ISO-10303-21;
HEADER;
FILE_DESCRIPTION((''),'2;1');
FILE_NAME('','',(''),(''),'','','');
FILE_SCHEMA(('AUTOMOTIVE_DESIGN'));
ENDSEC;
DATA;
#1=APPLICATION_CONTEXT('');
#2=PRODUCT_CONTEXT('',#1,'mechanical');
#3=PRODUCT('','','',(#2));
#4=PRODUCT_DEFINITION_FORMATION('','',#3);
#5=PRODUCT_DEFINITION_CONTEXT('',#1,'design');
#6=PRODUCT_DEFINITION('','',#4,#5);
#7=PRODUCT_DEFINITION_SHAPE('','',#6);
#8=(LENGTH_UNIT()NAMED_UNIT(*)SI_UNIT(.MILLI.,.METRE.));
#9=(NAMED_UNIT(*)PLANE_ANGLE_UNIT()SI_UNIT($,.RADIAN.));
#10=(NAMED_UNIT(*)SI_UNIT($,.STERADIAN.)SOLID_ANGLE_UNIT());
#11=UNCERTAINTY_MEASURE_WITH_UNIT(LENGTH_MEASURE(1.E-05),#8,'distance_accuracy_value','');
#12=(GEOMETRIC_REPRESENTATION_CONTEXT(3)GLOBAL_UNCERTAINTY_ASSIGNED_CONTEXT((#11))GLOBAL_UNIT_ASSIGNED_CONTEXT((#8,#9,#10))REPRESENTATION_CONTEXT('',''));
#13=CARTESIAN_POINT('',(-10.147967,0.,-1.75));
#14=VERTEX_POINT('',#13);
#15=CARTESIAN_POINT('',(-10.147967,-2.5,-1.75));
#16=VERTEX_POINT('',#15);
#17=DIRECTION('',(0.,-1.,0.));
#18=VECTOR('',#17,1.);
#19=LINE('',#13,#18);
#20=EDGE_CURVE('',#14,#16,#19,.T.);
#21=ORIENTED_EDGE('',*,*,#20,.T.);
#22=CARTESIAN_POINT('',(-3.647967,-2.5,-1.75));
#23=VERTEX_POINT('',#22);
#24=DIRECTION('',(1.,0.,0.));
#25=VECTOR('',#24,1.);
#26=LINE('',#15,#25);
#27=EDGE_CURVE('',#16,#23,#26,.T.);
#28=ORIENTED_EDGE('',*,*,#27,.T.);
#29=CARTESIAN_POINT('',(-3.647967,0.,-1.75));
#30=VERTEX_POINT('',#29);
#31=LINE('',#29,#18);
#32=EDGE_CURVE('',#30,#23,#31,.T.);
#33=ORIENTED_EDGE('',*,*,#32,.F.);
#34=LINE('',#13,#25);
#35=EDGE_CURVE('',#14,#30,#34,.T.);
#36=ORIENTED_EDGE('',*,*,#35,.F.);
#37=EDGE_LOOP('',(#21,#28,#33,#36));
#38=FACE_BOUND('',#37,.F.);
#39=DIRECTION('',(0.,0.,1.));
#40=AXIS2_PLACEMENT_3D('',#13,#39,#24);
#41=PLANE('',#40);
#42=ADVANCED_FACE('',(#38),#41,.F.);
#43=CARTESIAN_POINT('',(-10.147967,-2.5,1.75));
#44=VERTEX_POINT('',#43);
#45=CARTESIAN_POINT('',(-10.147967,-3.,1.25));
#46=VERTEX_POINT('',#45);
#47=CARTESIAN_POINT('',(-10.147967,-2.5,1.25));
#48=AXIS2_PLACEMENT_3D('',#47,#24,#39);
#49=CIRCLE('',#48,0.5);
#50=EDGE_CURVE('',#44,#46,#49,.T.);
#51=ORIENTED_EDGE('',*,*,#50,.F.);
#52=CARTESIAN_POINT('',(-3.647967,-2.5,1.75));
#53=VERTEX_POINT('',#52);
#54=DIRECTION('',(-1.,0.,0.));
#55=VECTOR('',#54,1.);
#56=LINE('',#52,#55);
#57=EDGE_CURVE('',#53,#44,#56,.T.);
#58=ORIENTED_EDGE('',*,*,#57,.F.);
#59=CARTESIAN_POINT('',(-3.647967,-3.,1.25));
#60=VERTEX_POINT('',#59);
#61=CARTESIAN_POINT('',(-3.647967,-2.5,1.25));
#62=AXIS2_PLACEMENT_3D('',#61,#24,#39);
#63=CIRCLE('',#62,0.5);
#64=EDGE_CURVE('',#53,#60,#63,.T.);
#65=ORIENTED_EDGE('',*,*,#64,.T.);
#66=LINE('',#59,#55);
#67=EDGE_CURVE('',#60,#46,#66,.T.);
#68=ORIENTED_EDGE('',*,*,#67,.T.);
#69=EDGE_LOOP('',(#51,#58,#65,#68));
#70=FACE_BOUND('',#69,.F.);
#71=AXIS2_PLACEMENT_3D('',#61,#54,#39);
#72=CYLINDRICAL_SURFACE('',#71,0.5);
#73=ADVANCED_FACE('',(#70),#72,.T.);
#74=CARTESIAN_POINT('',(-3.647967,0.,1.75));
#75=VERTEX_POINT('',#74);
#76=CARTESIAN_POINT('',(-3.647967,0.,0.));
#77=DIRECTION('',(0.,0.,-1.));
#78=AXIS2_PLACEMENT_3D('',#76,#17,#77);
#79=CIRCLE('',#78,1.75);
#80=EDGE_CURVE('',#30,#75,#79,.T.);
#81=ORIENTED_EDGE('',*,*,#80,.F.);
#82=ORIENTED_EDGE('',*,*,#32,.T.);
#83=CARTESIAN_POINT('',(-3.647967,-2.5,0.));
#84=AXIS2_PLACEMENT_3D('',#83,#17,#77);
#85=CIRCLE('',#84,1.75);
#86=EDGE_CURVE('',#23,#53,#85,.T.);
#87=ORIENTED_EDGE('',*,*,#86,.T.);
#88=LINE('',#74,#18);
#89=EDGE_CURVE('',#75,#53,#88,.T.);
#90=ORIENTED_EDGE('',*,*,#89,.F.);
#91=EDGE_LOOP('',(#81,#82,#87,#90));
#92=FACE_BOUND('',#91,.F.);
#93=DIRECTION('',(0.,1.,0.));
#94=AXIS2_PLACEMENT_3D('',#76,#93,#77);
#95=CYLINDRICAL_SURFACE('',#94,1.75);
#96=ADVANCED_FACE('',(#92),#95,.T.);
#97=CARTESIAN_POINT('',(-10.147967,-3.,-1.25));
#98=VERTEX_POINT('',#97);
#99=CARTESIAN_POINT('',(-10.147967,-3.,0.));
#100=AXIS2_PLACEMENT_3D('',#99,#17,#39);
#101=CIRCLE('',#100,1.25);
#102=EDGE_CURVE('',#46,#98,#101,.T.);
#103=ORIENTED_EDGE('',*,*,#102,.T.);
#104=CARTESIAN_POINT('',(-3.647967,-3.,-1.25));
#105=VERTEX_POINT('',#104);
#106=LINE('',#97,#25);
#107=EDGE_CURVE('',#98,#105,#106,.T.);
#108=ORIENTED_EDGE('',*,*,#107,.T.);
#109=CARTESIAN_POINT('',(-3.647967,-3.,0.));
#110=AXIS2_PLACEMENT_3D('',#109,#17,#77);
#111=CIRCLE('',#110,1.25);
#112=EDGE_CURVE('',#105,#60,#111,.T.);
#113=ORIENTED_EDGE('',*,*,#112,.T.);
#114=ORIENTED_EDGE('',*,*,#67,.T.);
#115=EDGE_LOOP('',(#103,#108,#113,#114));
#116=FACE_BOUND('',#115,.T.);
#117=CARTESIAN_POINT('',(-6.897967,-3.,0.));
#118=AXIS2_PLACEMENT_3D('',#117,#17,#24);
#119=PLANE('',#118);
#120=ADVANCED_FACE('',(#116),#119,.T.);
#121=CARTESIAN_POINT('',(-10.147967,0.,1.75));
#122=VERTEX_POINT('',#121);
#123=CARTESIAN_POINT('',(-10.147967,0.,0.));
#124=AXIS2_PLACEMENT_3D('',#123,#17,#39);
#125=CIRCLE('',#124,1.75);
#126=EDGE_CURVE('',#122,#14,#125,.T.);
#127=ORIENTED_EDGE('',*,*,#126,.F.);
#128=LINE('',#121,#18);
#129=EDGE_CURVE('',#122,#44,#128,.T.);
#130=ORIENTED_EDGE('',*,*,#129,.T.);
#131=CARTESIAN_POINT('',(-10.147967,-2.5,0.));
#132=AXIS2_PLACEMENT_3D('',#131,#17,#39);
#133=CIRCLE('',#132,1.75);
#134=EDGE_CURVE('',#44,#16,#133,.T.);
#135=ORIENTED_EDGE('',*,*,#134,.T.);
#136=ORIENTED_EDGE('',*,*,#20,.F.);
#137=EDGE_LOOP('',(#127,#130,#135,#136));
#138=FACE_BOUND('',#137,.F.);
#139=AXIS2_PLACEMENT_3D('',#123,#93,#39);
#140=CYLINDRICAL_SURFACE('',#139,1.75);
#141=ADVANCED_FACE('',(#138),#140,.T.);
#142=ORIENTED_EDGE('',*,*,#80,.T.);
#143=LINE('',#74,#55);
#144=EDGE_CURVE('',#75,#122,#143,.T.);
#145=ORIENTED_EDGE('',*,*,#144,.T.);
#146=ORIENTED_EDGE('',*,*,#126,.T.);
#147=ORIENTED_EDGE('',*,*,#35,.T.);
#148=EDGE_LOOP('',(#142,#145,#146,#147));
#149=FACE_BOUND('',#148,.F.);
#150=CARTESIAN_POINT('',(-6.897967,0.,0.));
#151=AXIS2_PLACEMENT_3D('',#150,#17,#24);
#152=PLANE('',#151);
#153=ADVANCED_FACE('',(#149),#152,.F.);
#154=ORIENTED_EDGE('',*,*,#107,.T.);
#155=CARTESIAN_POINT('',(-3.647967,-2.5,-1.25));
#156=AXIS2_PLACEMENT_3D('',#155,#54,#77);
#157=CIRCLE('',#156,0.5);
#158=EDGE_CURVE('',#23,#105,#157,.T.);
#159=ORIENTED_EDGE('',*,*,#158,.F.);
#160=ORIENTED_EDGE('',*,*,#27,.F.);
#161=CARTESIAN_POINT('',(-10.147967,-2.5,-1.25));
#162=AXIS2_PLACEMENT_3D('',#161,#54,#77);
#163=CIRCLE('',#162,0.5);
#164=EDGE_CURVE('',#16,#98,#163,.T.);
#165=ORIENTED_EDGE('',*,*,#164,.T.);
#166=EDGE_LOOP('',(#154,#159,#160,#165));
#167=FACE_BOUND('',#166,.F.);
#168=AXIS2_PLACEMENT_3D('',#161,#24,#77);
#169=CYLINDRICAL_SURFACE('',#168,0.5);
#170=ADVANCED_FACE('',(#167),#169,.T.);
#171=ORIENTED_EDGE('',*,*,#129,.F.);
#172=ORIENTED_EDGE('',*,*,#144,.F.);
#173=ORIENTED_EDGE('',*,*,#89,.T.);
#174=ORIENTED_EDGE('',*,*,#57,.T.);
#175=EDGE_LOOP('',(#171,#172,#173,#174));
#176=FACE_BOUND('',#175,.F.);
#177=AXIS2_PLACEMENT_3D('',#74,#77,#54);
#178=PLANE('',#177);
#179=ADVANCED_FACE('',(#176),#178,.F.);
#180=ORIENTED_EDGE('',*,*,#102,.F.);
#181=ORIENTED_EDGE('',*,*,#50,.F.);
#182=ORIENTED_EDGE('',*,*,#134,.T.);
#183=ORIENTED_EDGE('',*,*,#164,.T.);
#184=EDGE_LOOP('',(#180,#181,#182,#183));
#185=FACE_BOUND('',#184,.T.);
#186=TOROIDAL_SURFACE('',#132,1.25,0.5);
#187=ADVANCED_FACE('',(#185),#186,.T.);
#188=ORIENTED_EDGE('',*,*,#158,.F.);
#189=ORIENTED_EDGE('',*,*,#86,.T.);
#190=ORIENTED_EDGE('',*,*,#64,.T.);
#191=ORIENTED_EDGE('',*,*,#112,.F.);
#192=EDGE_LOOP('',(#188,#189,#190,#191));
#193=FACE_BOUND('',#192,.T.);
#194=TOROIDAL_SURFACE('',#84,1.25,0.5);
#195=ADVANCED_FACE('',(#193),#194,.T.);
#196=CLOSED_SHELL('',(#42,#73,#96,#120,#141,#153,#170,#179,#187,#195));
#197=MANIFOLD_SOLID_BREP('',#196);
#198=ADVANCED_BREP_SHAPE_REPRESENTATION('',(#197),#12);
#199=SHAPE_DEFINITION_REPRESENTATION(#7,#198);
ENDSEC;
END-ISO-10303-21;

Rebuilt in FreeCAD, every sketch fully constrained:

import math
import FreeCAD as App
import Part
import Sketcher


def edges_at(feature, points):
    """Names of the edges that pass closest to the given points."""
    edges = feature.Shape.Edges
    near = lambda p: min(range(len(edges)), key=lambda i: edges[i].distToShape(Part.Vertex(*p))[0])
    return sorted({f"Edge{near(p) + 1}" for p in points})

doc = App.newDocument("Part")
body = doc.addObject("PartDesign::Body", "Body")

# Sketch on XZ plane
sketch1 = doc.addObject("Sketcher::SketchObject", "Sketch")
body.addObject(sketch1)
sketch1.AttachmentSupport = (doc.XZ_Plane, [""])
sketch1.MapMode = "FlatFace"
sketch1.addGeometry(Part.LineSegment(App.Vector(-3.6, 1.8, 0), App.Vector(-10.1, 1.8, 0)), False)
sketch1.addGeometry(Part.ArcOfCircle(Part.Circle(App.Vector(-10.1, 0, 0), App.Vector(0, 0, 1), 1.8), math.radians(90), math.radians(270)), False)
sketch1.addGeometry(Part.LineSegment(App.Vector(-10.1, -1.8, 0), App.Vector(-3.6, -1.8, 0)), False)
sketch1.addGeometry(Part.ArcOfCircle(Part.Circle(App.Vector(-3.6, 0, 0), App.Vector(0, 0, 1), 1.8), math.radians(-90), math.radians(90)), False)
sketch1.addConstraint(Sketcher.Constraint("Tangent", 0, 2, 1, 1))
sketch1.addConstraint(Sketcher.Constraint("Tangent", 1, 2, 2, 1))
sketch1.addConstraint(Sketcher.Constraint("Tangent", 2, 2, 3, 1))
sketch1.addConstraint(Sketcher.Constraint("Tangent", 3, 2, 0, 1))
sketch1.addConstraint(Sketcher.Constraint("Horizontal", 0))
sketch1.addConstraint(Sketcher.Constraint("Horizontal", 2))
sketch1.addConstraint(Sketcher.Constraint("PointOnObject", 1, 3, -1))
sketch1.addConstraint(Sketcher.Constraint("Radius", 1, 1.75))
sketch1.addConstraint(Sketcher.Constraint("DistanceX", 0, 2, 0, 1, 6.5))
sketch1.addConstraint(Sketcher.Constraint("DistanceX", 1, 3, -1, 1, 10.147967))
pad1 = doc.addObject("PartDesign::Pad", "Pad")
body.addObject(pad1)
pad1.Profile = sketch1
pad1.Length = 3
doc.recompute()

fillet = doc.addObject("PartDesign::Fillet", "Fillet")
body.addObject(fillet)
fillet.Base = (pad1, edges_at(pad1, [
    (-6.898, -3, 1.75),
    (-1.898, -3, 0),
    (-6.898, -3, -1.75),
    (-11.898, -3, 0),
]))
fillet.Radius = 0.5

doc.recompute()
